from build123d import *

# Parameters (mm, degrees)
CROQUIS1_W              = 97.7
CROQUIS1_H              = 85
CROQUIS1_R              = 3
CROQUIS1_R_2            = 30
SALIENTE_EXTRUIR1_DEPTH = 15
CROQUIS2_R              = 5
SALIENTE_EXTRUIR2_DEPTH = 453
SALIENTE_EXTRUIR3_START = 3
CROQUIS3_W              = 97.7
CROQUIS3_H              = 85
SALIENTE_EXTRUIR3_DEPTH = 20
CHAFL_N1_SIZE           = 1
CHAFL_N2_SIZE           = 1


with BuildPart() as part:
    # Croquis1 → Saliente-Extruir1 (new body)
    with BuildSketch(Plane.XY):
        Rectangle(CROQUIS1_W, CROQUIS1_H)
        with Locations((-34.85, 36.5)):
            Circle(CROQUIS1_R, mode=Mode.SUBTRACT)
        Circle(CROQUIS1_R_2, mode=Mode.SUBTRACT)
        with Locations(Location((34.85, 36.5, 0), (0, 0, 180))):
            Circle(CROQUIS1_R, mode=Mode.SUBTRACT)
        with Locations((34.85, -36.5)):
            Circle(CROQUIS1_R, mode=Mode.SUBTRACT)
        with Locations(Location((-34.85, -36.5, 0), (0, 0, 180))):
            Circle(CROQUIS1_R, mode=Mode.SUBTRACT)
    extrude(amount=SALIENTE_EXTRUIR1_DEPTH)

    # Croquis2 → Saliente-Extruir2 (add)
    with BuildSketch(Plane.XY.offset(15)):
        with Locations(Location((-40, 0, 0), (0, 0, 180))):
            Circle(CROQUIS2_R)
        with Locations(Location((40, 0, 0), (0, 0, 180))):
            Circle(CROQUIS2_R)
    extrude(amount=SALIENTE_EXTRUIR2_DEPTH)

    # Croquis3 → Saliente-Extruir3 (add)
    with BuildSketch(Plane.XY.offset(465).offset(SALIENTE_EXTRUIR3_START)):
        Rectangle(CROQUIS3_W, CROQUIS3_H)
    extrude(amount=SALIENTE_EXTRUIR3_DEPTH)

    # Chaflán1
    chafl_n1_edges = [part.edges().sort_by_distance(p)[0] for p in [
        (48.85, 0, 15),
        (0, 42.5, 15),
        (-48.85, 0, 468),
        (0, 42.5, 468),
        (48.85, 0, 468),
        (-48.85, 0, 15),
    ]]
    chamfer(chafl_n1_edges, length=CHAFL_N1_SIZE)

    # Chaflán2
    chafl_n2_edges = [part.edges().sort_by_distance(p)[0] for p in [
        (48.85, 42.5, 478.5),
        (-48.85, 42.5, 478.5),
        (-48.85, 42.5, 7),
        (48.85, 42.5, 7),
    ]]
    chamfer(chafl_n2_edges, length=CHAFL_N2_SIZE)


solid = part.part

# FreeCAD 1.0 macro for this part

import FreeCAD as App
import Part
import Sketcher
Q = App.Units.Quantity


def edges_at(feature, points):
    """Names of the edges that pass closest to the given points."""
    edges = feature.Shape.Edges
    near = lambda p: min(range(len(edges)), key=lambda i: edges[i].distToShape(Part.Vertex(*p))[0])
    return sorted({f"Edge{near(p) + 1}" for p in points})


def add_polygon(sketch, points):
    """Adds a closed chain of lines whose ends are joined by coincident constraints."""
    first, n = sketch.GeometryCount, len(points)
    for a, b in zip(points, points[1:] + points[:1]):
        sketch.addGeometry(Part.LineSegment(App.Vector(*a, 0), App.Vector(*b, 0)), False)
    for i in range(n):
        sketch.addConstraint(Sketcher.Constraint("Coincident", first + i, 2, first + (i + 1) % n, 1))

doc = App.newDocument("Part")
body = doc.addObject("PartDesign::Body", "Body")

sketch1 = body.newObject("Sketcher::SketchObject", "Sketch")
sketch1.AttachmentSupport = (doc.getObject("XY_Plane"), [""])
sketch1.MapMode = "FlatFace"
add_polygon(sketch1, [(-48.9, 42.5), (-48.9, -42.5), (48.9, -42.5), (48.9, 42.5)])
sketch1.addGeometry(Part.Circle(App.Vector(-34.9, -36.5, 0), App.Vector(0, 0, 1), 3), False)
sketch1.addGeometry(Part.Circle(App.Vector(34.9, -36.5, 0), App.Vector(0, 0, 1), 3), False)
sketch1.addGeometry(Part.Circle(App.Vector(-34.9, 36.5, 0), App.Vector(0, 0, 1), 3), False)
sketch1.addGeometry(Part.Circle(App.Vector(0, 0, 0), App.Vector(0, 0, 1), 30), False)
sketch1.addGeometry(Part.Circle(App.Vector(34.9, 36.5, 0), App.Vector(0, 0, 1), 3), False)
sketch1.addConstraint([
    Sketcher.Constraint("Vertical", 0),
    Sketcher.Constraint("Horizontal", 1),
    Sketcher.Constraint("Vertical", 2),
    Sketcher.Constraint("Horizontal", 3),
    Sketcher.Constraint("Coincident", 7, 3, -1, 1),
    Sketcher.Constraint("Equal", 4, 5),
    Sketcher.Constraint("Equal", 5, 6),
    Sketcher.Constraint("Equal", 6, 8),
    Sketcher.Constraint("Symmetric", 5, 3, 6, 3, -1, 1),
    Sketcher.Constraint("Symmetric", 4, 3, 8, 3, -1, 1),
    Sketcher.Constraint("Symmetric", 0, 2, 2, 2, -1, 1),
    Sketcher.Constraint("Symmetric", 4, 3, 5, 3, -2),
    Sketcher.Constraint("Diameter", 4, Q("6 mm")),
    Sketcher.Constraint("Diameter", 7, Q("60 mm")),
    Sketcher.Constraint("DistanceY", 0, 2, 0, 1, Q("85 mm")),
    Sketcher.Constraint("DistanceX", 1, 1, 1, 2, Q("97.7 mm")),
    Sketcher.Constraint("DistanceY", 4, 3, 6, 3, Q("73 mm")),
    Sketcher.Constraint("DistanceX", 0, 2, 4, 3, Q("14 mm")),
])
pad1 = body.newObject("PartDesign::Pad", "Pad")
pad1.Profile = sketch1
pad1.Length = 15

sketch2 = body.newObject("Sketcher::SketchObject", "Sketch001")
sketch2.AttachmentSupport = (doc.getObject("XY_Plane"), [""])
sketch2.MapMode = "FlatFace"
sketch2.AttachmentOffset = App.Placement(App.Vector(0, 0, 15), App.Rotation())
sketch2.addGeometry([
    Part.Circle(App.Vector(-40, 0, 0), App.Vector(0, 0, 1), 5),
    Part.Circle(App.Vector(40, 0, 0), App.Vector(0, 0, 1), 5),
], False)
sketch2.addConstraint([
    Sketcher.Constraint("Equal", 0, 1),
    Sketcher.Constraint("Symmetric", 0, 3, 1, 3, -1, 1),
    Sketcher.Constraint("PointOnObject", 0, 3, -1),
    Sketcher.Constraint("Diameter", 0, Q("10 mm")),
    Sketcher.Constraint("DistanceX", 0, 3, -1, 1, Q("40 mm")),
])
pad2 = body.newObject("PartDesign::Pad", "Pad001")
pad2.Profile = sketch2
pad2.Length = 453

sketch3 = body.newObject("Sketcher::SketchObject", "Sketch002")
sketch3.AttachmentSupport = (doc.getObject("XY_Plane"), [""])
sketch3.MapMode = "FlatFace"
sketch3.AttachmentOffset = App.Placement(App.Vector(0, 0, 468), App.Rotation())
add_polygon(sketch3, [(-49, 42), (-49, -42), (49, -42), (49, 42)])
sketch3.addConstraint([
    Sketcher.Constraint("Vertical", 0),
    Sketcher.Constraint("Horizontal", 1),
    Sketcher.Constraint("Vertical", 2),
    Sketcher.Constraint("Horizontal", 3),
    Sketcher.Constraint("Symmetric", 0, 2, 2, 2, -1, 1),
    Sketcher.Constraint("DistanceY", 0, 2, 0, 1, Q("85 mm")),
    Sketcher.Constraint("DistanceX", 1, 1, 1, 2, Q("97.7 mm")),
])
pad3 = body.newObject("PartDesign::Pad", "Pad002")
pad3.Profile = sketch3
pad3.Length = 20
doc.recompute()

chamfer = body.newObject("PartDesign::Chamfer", "Chamfer")
chamfer.Base = (pad3, edges_at(pad3, [
    (48.85, 0, 15),
    (0, 42.5, 15),
    (-48.85, 0, 468),
    (0, 42.5, 468),
    (48.85, 0, 468),
    (-48.85, 0, 15),
]))
chamfer.Size = 1
doc.recompute()

chamfer2 = body.newObject("PartDesign::Chamfer", "Chamfer001")
chamfer2.Base = (chamfer, edges_at(chamfer, [
    (48.85, 42.5, 478.5),
    (-48.85, 42.5, 478.5),
    (-48.85, 42.5, 7),
    (48.85, 42.5, 7),
]))
chamfer2.Size = 1

doc.recompute()
